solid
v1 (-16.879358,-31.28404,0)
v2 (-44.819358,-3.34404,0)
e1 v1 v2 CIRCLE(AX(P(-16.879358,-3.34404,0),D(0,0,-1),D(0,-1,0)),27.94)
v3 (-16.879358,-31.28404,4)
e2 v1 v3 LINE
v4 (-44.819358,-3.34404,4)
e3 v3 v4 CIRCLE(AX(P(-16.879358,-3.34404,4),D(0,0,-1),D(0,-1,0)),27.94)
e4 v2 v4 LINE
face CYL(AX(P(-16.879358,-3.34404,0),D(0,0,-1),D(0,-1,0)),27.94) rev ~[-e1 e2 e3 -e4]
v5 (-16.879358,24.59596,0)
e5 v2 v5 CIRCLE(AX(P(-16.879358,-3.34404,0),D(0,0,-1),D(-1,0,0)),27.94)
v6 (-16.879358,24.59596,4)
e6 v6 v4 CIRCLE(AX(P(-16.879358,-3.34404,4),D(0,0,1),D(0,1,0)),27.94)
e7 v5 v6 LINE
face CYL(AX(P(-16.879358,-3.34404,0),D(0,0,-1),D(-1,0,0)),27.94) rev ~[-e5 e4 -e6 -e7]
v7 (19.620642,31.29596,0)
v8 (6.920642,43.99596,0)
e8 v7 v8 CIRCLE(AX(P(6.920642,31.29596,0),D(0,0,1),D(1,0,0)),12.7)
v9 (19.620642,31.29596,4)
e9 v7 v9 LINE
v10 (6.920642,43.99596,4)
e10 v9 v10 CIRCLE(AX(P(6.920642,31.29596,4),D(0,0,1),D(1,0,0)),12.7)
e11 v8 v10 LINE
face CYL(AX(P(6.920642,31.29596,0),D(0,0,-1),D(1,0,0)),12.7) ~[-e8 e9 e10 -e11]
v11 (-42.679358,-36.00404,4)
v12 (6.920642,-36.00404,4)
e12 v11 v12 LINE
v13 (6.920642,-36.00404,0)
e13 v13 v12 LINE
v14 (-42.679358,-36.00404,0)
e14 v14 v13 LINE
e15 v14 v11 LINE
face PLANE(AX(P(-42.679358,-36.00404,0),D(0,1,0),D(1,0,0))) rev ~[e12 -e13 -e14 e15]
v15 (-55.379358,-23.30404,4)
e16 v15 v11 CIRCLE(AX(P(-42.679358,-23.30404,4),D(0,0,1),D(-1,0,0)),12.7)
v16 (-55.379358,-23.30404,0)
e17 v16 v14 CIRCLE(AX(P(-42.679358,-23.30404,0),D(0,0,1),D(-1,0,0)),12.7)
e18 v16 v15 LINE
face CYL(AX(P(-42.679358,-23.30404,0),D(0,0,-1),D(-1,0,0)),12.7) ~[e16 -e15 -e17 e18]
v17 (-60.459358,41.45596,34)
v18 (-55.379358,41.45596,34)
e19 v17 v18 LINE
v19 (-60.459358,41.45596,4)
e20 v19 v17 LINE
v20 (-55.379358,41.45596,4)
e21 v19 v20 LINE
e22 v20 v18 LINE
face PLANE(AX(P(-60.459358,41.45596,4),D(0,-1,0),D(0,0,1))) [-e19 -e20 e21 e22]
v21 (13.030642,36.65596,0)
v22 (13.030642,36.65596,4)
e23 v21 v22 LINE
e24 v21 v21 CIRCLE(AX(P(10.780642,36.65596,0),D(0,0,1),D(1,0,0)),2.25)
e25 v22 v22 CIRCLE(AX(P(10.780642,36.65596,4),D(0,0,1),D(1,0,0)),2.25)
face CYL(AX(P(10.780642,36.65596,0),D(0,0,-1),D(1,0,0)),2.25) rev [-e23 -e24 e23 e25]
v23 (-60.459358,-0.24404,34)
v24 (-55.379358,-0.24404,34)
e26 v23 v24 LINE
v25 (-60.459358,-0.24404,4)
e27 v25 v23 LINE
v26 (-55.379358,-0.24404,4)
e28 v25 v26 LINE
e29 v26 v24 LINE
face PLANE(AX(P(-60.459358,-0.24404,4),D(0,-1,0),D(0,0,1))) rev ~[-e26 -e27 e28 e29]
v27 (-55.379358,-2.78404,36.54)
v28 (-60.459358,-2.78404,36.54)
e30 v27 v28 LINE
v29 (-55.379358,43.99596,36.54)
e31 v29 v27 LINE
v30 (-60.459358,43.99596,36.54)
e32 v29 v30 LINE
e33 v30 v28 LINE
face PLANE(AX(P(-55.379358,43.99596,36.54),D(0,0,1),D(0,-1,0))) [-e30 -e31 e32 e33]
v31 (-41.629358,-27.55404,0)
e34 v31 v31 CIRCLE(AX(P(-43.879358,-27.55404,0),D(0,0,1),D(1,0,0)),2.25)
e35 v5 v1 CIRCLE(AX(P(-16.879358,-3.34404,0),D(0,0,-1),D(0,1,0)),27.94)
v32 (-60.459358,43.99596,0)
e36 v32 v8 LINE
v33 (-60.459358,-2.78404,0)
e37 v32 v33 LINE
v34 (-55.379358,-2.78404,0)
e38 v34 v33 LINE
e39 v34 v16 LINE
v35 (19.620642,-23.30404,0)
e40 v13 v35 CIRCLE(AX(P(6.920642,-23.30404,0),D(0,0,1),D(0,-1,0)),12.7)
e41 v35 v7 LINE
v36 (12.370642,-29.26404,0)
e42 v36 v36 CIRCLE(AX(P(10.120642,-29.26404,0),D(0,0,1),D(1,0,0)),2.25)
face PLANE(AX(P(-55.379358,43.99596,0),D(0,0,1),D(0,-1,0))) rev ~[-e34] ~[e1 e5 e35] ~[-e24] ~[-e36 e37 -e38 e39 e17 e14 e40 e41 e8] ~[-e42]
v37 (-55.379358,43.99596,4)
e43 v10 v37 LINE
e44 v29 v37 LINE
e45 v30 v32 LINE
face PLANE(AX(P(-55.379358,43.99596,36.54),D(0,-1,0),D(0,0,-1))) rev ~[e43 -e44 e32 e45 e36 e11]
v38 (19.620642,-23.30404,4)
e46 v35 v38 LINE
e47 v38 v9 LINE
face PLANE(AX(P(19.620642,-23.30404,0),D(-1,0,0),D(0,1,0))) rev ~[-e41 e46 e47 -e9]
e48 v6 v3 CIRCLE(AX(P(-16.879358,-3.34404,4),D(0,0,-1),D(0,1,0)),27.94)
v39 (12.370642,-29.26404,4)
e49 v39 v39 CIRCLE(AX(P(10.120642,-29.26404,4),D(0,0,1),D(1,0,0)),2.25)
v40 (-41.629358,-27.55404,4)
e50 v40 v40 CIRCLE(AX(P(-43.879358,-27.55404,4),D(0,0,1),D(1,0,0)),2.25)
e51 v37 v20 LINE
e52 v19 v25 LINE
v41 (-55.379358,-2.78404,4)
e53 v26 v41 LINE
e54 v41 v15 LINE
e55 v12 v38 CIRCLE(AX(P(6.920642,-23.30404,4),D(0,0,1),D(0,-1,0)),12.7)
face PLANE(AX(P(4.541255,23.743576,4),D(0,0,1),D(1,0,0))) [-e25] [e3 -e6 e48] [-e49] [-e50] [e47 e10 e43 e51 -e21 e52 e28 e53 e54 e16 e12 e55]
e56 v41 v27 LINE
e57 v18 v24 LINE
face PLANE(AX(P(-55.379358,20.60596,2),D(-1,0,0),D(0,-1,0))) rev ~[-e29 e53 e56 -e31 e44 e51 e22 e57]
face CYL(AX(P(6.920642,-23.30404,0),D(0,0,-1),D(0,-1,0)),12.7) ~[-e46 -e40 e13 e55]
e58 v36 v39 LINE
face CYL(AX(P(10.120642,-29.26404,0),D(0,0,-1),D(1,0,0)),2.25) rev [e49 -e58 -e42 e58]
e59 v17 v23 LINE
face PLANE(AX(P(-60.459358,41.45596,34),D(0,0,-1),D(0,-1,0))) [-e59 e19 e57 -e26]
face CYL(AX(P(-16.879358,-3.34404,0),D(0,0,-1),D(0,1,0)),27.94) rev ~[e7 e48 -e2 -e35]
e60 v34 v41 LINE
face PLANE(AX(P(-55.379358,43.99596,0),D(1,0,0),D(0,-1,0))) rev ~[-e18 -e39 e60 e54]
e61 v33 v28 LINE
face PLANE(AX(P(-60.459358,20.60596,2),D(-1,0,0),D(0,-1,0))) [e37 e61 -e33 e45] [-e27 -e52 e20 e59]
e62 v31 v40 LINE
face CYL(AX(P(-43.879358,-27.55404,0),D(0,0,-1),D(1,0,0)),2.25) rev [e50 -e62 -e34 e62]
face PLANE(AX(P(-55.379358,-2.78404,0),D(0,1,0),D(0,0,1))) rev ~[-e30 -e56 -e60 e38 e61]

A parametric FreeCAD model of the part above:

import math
import FreeCAD as App
import Part
import Sketcher

doc = App.newDocument("Part")
body = doc.addObject("PartDesign::Body", "Body")

# Sketch on XY plane
sketch1 = doc.addObject("Sketcher::SketchObject", "Sketch")
body.addObject(sketch1)
sketch1.AttachmentSupport = (doc.XY_Plane, [""])
sketch1.MapMode = "FlatFace"
sketch1.addGeometry(Part.LineSegment(App.Vector(6.9, 44, 0), App.Vector(-55.4, 44, 0)), False)
sketch1.addGeometry(Part.LineSegment(App.Vector(-55.4, 44, 0), App.Vector(-55.4, -23.3, 0)), False)
sketch1.addGeometry(Part.ArcOfCircle(Part.Circle(App.Vector(-42.7, -23.3, 0), App.Vector(0, 0, 1), 12.7), math.radians(180), math.radians(270)), False)
sketch1.addGeometry(Part.LineSegment(App.Vector(-42.7, -36, 0), App.Vector(6.9, -36, 0)), False)
sketch1.addGeometry(Part.ArcOfCircle(Part.Circle(App.Vector(6.9, -23.3, 0), App.Vector(0, 0, 1), 12.7), math.radians(-90), math.radians(0)), False)
sketch1.addGeometry(Part.LineSegment(App.Vector(19.6, -23.3, 0), App.Vector(19.6, 31.3, 0)), False)
sketch1.addGeometry(Part.ArcOfCircle(Part.Circle(App.Vector(6.9, 31.3, 0), App.Vector(0, 0, 1), 12.7), math.radians(0), math.radians(90)), False)
sketch1.addGeometry(Part.ArcOfCircle(Part.Circle(App.Vector(-16.9, -3.3, 0), App.Vector(0, 0, 1), 27.9), math.radians(-90), math.radians(90)), False)
sketch1.addGeometry(Part.ArcOfCircle(Part.Circle(App.Vector(-16.9, -3.3, 0), App.Vector(0, 0, 1), 27.9), math.radians(180), math.radians(270)), False)
sketch1.addGeometry(Part.ArcOfCircle(Part.Circle(App.Vector(-16.9, -3.3, 0), App.Vector(0, 0, 1), 27.9), math.radians(90), math.radians(180)), False)
sketch1.addGeometry(Part.Circle(App.Vector(-43.9, -27.6, 0), App.Vector(0, 0, 1), 2.2), False)
sketch1.addGeometry(Part.Circle(App.Vector(10.1, -29.3, 0), App.Vector(0, 0, 1), 2.2), False)
sketch1.addGeometry(Part.Circle(App.Vector(10.8, 36.7, 0), App.Vector(0, 0, 1), 2.2), False)
sketch1.addConstraint(Sketcher.Constraint("Coincident", 0, 2, 1, 1))
sketch1.addConstraint(Sketcher.Constraint("Tangent", 1, 2, 2, 1))
sketch1.addConstraint(Sketcher.Constraint("Tangent", 2, 2, 3, 1))
sketch1.addConstraint(Sketcher.Constraint("Tangent", 3, 2, 4, 1))
sketch1.addConstraint(Sketcher.Constraint("Tangent", 4, 2, 5, 1))
sketch1.addConstraint(Sketcher.Constraint("Tangent", 5, 2, 6, 1))
sketch1.addConstraint(Sketcher.Constraint("Tangent", 6, 2, 0, 1))
sketch1.addConstraint(Sketcher.Constraint("Tangent", 7, 1, 8, 2))
sketch1.addConstraint(Sketcher.Constraint("Tangent", 8, 1, 9, 2))
sketch1.addConstraint(Sketcher.Constraint("Tangent", 9, 1, 7, 2))
sketch1.addConstraint(Sketcher.Constraint("Horizontal", 0))
sketch1.addConstraint(Sketcher.Constraint("Vertical", 1))
sketch1.addConstraint(Sketcher.Constraint("Horizontal", 3))
sketch1.addConstraint(Sketcher.Constraint("Vertical", 5))
sketch1.addConstraint(Sketcher.Constraint("Equal", 2, 4))
sketch1.addConstraint(Sketcher.Constraint("Equal", 4, 6))
sketch1.addConstraint(Sketcher.Constraint("Equal", 10, 11))
sketch1.addConstraint(Sketcher.Constraint("Equal", 11, 12))
sketch1.addConstraint(Sketcher.Constraint("Horizontal", 9, 3, 8, 1))
sketch1.addConstraint(Sketcher.Constraint("Vertical", 9, 3, 7, 1))
sketch1.addConstraint(Sketcher.Constraint("Vertical", 7, 1, 9, 1))
sketch1.addConstraint(Sketcher.Constraint("Diameter", 10, 4.5))
sketch1.addConstraint(Sketcher.Constraint("Radius", 2, 12.7))
sketch1.addConstraint(Sketcher.Constraint("Radius", 7, 27.94))
sketch1.addConstraint(Sketcher.Constraint("DistanceX", 0, 2, 0, 1, 62.3))
sketch1.addConstraint(Sketcher.Constraint("DistanceY", 1, 2, 1, 1, 67.3))
sketch1.addConstraint(Sketcher.Constraint("DistanceX", 10, 3, 8, 3, 27.0))
sketch1.addConstraint(Sketcher.Constraint("DistanceX", 7, 3, 11, 3, 27.0))
sketch1.addConstraint(Sketcher.Constraint("DistanceY", 7, 3, 12, 3, 40.0))
sketch1.addConstraint(Sketcher.Constraint("DistanceX", 7, 3, 4, 3, 23.8))
sketch1.addConstraint(Sketcher.Constraint("DistanceY", 9, 1, 6, 3, 6.7))
sketch1.addConstraint(Sketcher.Constraint("DistanceY", 10, 3, 2, 3, 4.25))
sketch1.addConstraint(Sketcher.Constraint("DistanceY", 11, 3, 4, 3, 5.96))
sketch1.addConstraint(Sketcher.Constraint("DistanceX", 6, 3, 12, 3, 3.86))
sketch1.addConstraint(Sketcher.Constraint("DistanceY", 2, 3, -1, 1, 23.30404))
sketch1.addConstraint(Sketcher.Constraint("DistanceX", 2, 3, -1, 1, 42.679358))
pad1 = doc.addObject("PartDesign::Pad", "Pad")
body.addObject(pad1)
pad1.Profile = sketch1
pad1.Length = 4

# Sketch on YZ plane
sketch2 = doc.addObject("Sketcher::SketchObject", "Sketch001")
body.addObject(sketch2)
sketch2.AttachmentSupport = (doc.YZ_Plane, [""])
sketch2.MapMode = "FlatFace"
sketch2.AttachmentOffset = App.Placement(App.Vector(0, 0, -55.379358), App.Rotation())
sketch2.addGeometry(Part.LineSegment(App.Vector(44, 0, 0), App.Vector(-3, 0, 0)), False)
sketch2.addGeometry(Part.LineSegment(App.Vector(-3, 0, 0), App.Vector(-3, 37, 0)), False)
sketch2.addGeometry(Part.LineSegment(App.Vector(-3, 37, 0), App.Vector(44, 37, 0)), False)
sketch2.addGeometry(Part.LineSegment(App.Vector(44, 37, 0), App.Vector(44, 0, 0)), False)
sketch2.addConstraint(Sketcher.Constraint("Coincident", 0, 2, 1, 1))
sketch2.addConstraint(Sketcher.Constraint("Coincident", 1, 2, 2, 1))
sketch2.addConstraint(Sketcher.Constraint("Coincident", 2, 2, 3, 1))
sketch2.addConstraint(Sketcher.Constraint("Coincident", 3, 2, 0, 1))
sketch2.addConstraint(Sketcher.Constraint("Horizontal", 0))
sketch2.addConstraint(Sketcher.Constraint("Vertical", 1))
sketch2.addConstraint(Sketcher.Constraint("Horizontal", 2))
sketch2.addConstraint(Sketcher.Constraint("Vertical", 3))
sketch2.addConstraint(Sketcher.Constraint("PointOnObject", 0, 2, -1))
sketch2.addConstraint(Sketcher.Constraint("DistanceX", 0, 2, 0, 1, 46.78))
sketch2.addConstraint(Sketcher.Constraint("DistanceY", 1, 1, 1, 2, 36.54))
sketch2.addConstraint(Sketcher.Constraint("DistanceX", 0, 2, -1, 1, 2.78404))
pad2 = doc.addObject("PartDesign::Pad", "Pad001")
body.addObject(pad2)
pad2.Profile = sketch2
pad2.Length = 5.08
pad2.Reversed = True

# Sketch on YZ plane
sketch3 = doc.addObject("Sketcher::SketchObject", "Sketch002")
body.addObject(sketch3)
sketch3.AttachmentSupport = (doc.YZ_Plane, [""])
sketch3.MapMode = "FlatFace"
sketch3.AttachmentOffset = App.Placement(App.Vector(0, 0, -60.459358), App.Rotation())
sketch3.addGeometry(Part.LineSegment(App.Vector(41, 34, 0), App.Vector(41, 4, 0)), False)
sketch3.addGeometry(Part.LineSegment(App.Vector(41, 4, 0), App.Vector(0, 4, 0)), False)
sketch3.addGeometry(Part.LineSegment(App.Vector(0, 4, 0), App.Vector(0, 34, 0)), False)
sketch3.addGeometry(Part.LineSegment(App.Vector(0, 34, 0), App.Vector(41, 34, 0)), False)
sketch3.addConstraint(Sketcher.Constraint("Coincident", 0, 2, 1, 1))
sketch3.addConstraint(Sketcher.Constraint("Coincident", 1, 2, 2, 1))
sketch3.addConstraint(Sketcher.Constraint("Coincident", 2, 2, 3, 1))
sketch3.addConstraint(Sketcher.Constraint("Coincident", 3, 2, 0, 1))
sketch3.addConstraint(Sketcher.Constraint("Vertical", 0))
sketch3.addConstraint(Sketcher.Constraint("Horizontal", 1))
sketch3.addConstraint(Sketcher.Constraint("Vertical", 2))
sketch3.addConstraint(Sketcher.Constraint("Horizontal", 3))
sketch3.addConstraint(Sketcher.Constraint("DistanceY", 0, 2, 0, 1, 30.0))
sketch3.addConstraint(Sketcher.Constraint("DistanceX", 1, 2, 1, 1, 41.7))
sketch3.addConstraint(Sketcher.Constraint("DistanceY", -1, 1, 0, 2, 4.0))
sketch3.addConstraint(Sketcher.Constraint("DistanceX", -1, 1, 0, 2, 41.45596))
pocket1 = doc.addObject("PartDesign::Pocket", "Pocket")
body.addObject(pocket1)
pocket1.Profile = sketch3
pocket1.Length = 25.4
pocket1.Reversed = True

doc.recompute()
